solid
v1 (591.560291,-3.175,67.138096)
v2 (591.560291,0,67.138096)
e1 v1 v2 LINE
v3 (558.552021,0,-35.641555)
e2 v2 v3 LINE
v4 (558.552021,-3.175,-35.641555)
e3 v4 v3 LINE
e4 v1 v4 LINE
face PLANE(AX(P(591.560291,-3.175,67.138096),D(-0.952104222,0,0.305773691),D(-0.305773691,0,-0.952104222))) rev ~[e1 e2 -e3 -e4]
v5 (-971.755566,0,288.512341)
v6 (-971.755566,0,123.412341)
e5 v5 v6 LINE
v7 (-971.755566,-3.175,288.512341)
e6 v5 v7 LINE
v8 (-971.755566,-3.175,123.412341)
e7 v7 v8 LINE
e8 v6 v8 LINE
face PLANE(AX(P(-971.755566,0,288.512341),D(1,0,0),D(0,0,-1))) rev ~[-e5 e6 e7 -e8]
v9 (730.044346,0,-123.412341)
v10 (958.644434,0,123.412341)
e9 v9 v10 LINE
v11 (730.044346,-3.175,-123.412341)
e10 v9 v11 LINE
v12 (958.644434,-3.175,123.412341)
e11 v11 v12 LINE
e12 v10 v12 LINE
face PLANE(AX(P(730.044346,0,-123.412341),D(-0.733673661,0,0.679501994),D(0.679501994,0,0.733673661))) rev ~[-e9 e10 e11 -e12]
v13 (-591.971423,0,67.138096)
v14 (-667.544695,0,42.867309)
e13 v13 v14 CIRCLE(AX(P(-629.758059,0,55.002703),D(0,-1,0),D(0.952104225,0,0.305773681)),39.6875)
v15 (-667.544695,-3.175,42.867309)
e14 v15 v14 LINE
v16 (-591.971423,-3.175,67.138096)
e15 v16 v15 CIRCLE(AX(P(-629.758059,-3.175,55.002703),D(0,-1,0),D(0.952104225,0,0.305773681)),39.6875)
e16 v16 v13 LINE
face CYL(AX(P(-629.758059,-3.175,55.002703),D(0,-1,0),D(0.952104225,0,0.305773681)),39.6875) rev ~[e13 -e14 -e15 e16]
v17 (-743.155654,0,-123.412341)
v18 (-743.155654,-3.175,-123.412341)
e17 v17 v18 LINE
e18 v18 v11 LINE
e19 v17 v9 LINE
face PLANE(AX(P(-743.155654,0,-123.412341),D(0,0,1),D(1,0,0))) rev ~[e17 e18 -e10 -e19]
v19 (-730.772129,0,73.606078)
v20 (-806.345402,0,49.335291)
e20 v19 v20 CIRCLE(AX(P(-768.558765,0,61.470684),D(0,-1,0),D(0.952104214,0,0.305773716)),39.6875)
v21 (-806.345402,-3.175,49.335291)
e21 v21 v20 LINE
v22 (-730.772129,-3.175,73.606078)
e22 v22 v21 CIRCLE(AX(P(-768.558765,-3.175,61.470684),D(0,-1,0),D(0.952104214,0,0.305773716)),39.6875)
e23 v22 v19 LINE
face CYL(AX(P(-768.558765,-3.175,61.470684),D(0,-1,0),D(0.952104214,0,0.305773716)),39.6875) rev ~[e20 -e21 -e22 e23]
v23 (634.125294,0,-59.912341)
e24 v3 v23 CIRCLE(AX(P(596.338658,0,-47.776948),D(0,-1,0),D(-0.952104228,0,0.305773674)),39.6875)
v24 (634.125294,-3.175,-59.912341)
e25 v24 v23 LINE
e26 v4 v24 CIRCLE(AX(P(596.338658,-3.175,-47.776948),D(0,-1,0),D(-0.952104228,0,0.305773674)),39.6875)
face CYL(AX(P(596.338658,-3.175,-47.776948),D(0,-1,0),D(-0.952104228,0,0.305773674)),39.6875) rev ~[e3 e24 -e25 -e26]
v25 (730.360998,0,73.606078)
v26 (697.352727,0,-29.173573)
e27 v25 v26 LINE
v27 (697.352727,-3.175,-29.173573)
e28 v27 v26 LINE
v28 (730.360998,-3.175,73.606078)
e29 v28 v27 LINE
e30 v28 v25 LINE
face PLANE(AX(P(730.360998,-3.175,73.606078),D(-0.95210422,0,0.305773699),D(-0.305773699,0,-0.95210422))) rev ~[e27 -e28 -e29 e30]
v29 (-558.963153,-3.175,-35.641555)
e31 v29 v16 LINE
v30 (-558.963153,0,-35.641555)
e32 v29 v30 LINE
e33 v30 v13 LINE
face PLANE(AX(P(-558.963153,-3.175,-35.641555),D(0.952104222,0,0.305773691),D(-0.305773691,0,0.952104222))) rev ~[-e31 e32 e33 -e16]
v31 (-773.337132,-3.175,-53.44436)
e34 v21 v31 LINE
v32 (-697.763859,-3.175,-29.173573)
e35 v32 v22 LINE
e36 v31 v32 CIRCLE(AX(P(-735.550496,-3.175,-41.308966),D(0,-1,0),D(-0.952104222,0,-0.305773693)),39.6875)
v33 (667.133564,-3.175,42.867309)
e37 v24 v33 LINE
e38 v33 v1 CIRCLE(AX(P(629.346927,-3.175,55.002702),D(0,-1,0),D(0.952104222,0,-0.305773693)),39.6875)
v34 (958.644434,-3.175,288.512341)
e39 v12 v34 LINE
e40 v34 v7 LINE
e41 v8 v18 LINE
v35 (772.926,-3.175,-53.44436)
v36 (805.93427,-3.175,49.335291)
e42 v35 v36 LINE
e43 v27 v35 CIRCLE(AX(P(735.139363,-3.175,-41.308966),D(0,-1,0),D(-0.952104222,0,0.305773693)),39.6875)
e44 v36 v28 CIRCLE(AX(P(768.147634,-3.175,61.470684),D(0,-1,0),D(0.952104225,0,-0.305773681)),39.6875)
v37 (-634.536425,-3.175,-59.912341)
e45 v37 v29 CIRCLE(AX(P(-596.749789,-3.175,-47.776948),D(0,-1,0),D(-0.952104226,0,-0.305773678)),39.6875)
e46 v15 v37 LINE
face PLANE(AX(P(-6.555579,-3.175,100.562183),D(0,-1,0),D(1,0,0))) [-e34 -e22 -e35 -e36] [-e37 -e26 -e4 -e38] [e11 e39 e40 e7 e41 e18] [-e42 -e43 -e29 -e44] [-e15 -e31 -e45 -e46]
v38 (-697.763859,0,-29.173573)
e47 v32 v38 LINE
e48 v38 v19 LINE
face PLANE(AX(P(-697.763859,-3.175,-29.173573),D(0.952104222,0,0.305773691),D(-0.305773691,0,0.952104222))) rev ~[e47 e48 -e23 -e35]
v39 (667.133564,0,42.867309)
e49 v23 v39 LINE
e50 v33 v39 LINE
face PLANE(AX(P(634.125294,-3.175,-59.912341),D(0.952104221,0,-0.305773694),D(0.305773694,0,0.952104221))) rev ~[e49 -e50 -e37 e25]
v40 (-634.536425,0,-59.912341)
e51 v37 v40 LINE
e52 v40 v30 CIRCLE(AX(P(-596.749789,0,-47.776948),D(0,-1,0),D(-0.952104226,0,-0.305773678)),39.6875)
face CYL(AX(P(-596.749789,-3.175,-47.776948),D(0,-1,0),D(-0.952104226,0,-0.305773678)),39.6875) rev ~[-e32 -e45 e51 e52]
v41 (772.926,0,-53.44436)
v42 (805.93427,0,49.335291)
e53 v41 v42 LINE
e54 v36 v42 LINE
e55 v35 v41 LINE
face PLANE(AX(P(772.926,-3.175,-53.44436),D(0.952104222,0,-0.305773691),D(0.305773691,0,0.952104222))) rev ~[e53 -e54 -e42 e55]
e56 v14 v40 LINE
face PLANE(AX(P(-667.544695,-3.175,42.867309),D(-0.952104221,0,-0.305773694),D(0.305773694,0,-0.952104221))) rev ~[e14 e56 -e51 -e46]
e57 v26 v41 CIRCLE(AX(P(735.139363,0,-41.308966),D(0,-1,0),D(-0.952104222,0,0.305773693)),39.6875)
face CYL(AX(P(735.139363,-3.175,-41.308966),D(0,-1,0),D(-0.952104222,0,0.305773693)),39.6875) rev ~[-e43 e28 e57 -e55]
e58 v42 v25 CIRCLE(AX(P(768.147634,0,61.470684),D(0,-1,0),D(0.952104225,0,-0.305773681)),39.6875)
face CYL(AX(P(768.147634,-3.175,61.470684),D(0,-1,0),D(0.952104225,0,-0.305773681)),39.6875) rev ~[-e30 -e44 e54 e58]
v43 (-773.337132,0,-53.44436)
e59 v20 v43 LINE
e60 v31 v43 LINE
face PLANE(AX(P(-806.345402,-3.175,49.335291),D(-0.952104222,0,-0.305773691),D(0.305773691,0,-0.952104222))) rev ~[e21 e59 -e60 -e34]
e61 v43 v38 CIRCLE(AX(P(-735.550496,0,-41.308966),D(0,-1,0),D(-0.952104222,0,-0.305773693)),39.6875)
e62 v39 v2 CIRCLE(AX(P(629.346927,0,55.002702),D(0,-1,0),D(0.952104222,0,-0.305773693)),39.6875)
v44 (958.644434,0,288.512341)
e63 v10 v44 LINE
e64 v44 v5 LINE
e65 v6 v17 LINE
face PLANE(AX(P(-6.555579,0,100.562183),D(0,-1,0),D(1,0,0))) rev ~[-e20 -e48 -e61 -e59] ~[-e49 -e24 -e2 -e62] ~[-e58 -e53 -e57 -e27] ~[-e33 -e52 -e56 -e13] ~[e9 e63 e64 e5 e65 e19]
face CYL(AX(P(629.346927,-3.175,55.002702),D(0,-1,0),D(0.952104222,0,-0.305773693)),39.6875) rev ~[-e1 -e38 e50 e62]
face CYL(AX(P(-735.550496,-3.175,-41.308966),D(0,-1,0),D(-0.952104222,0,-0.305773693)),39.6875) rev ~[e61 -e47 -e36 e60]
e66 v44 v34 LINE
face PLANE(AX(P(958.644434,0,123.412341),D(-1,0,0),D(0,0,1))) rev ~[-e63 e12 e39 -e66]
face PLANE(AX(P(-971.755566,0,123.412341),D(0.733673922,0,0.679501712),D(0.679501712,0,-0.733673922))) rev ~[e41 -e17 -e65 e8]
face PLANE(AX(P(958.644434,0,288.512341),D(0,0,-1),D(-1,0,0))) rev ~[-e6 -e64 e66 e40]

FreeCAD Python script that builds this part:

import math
import FreeCAD as App
import Part
import Sketcher

V = App.Vector
Q = App.Units.Quantity


def add_polygon(sketch, points):
    """Adds a closed chain of lines whose ends are joined by coincident constraints."""
    first, n = sketch.GeometryCount, len(points)
    for a, b in zip(points, points[1:] + points[:1]):
        sketch.addGeometry(Part.LineSegment(App.Vector(*a, 0), App.Vector(*b, 0)), False)
    for i in range(n):
        sketch.addConstraint(Sketcher.Constraint("Coincident", first + i, 2, first + (i + 1) % n, 1))

doc = App.newDocument("Part")
body = doc.addObject("PartDesign::Body", "Body")

# Sketch on XZ plane
sketch1 = doc.addObject("Sketcher::SketchObject", "Sketch")
body.addObject(sketch1)
sketch1.AttachmentSupport = (doc.XZ_Plane, [""])
sketch1.MapMode = "FlatFace"
add_polygon(sketch1, [(730, -123), (959, 123), (959, 289), (-972, 289), (-972, 123), (-743, -123)])  # lines 0-5
sketch1.addConstraint(Sketcher.Constraint("Vertical", 1))
sketch1.addConstraint(Sketcher.Constraint("Horizontal", 2))
sketch1.addConstraint(Sketcher.Constraint("Vertical", 3))
sketch1.addConstraint(Sketcher.Constraint("Horizontal", 5))
sketch1.addConstraint(Sketcher.Constraint("Horizontal", 0, 2, 3, 2))
sketch1.addConstraint(Sketcher.Constraint("DistanceX", 2, 2, 2, 1, Q("76 in")))
sketch1.addConstraint(Sketcher.Constraint("DistanceX", 5, 1, 5, 2, Q("58 in")))
sketch1.addConstraint(Sketcher.Constraint("DistanceY", 1, 1, 1, 2, Q("6.5 in")))
sketch1.addConstraint(Sketcher.Constraint("DistanceY", -1, 1, 0, 2, 123.412341))
sketch1.addConstraint(Sketcher.Constraint("DistanceY", 4, 2, -1, 1, 123.412341))
sketch1.addConstraint(Sketcher.Constraint("DistanceX", 4, 2, 0, 2, 1701.800088))
sketch1.addConstraint(Sketcher.Constraint("DistanceX", -1, 1, 0, 2, 958.644434))
pad1 = doc.addObject("PartDesign::Pad", "Pad")
body.addObject(pad1)
pad1.Profile = sketch1
pad1.Length = Q("0.125 in")

# Sketch on XZ plane
sketch2 = doc.addObject("Sketcher::SketchObject", "Sketch001")
body.addObject(sketch2)
sketch2.AttachmentSupport = (doc.XZ_Plane, [""])
sketch2.MapMode = "FlatFace"
sketch2.AttachmentOffset = App.Placement(V(0, 0, 0.125 * 25.4), App.Rotation())
sketch2.addGeometry(Part.ArcOfCircle(Part.Circle(V(-769, 61, 0), V(0, 0, 1), 40), math.radians(18), math.radians(198)), False)
sketch2.addGeometry(Part.LineSegment(V(-806, 49, 0), V(-773, -53, 0)), False)
sketch2.addGeometry(Part.ArcOfCircle(Part.Circle(V(-736, -41, 0), V(0, 0, 1), 40), math.radians(-162), math.radians(18)), False)
sketch2.addGeometry(Part.LineSegment(V(-698, -29, 0), V(-731, 74, 0)), False)
sketch2.addGeometry(Part.ArcOfCircle(Part.Circle(V(-630, 55, 0), V(0, 0, 1), 40), math.radians(18), math.radians(198)), False)
sketch2.addGeometry(Part.LineSegment(V(-668, 43, 0), V(-635, -60, 0)), False)
sketch2.addGeometry(Part.ArcOfCircle(Part.Circle(V(-597, -48, 0), V(0, 0, 1), 40), math.radians(-162), math.radians(18)), False)
sketch2.addGeometry(Part.LineSegment(V(-559, -36, 0), V(-592, 67, 0)), False)
sketch2.addGeometry(Part.LineSegment(V(634, -60, 0), V(667, 43, 0)), False)
sketch2.addGeometry(Part.ArcOfCircle(Part.Circle(V(629, 55, 0), V(0, 0, 1), 40), math.radians(-18), math.radians(162)), False)
sketch2.addGeometry(Part.LineSegment(V(592, 67, 0), V(559, -36, 0)), False)
sketch2.addGeometry(Part.ArcOfCircle(Part.Circle(V(596, -48, 0), V(0, 0, 1), 40), math.radians(162), math.radians(342)), False)
sketch2.addGeometry(Part.LineSegment(V(773, -53, 0), V(806, 49, 0)), False)
sketch2.addGeometry(Part.ArcOfCircle(Part.Circle(V(768, 61, 0), V(0, 0, 1), 40), math.radians(-18), math.radians(162)), False)
sketch2.addGeometry(Part.LineSegment(V(730, 74, 0), V(697, -29, 0)), False)
sketch2.addGeometry(Part.ArcOfCircle(Part.Circle(V(735, -41, 0), V(0, 0, 1), 40), math.radians(162), math.radians(342)), False)
sketch2.addConstraint(Sketcher.Constraint("Tangent", 0, 2, 1, 1))
sketch2.addConstraint(Sketcher.Constraint("Tangent", 1, 2, 2, 1))
sketch2.addConstraint(Sketcher.Constraint("Tangent", 2, 2, 3, 1))
sketch2.addConstraint(Sketcher.Constraint("Tangent", 3, 2, 0, 1))
sketch2.addConstraint(Sketcher.Constraint("Tangent", 4, 2, 5, 1))
sketch2.addConstraint(Sketcher.Constraint("Tangent", 5, 2, 6, 1))
sketch2.addConstraint(Sketcher.Constraint("Tangent", 6, 2, 7, 1))
sketch2.addConstraint(Sketcher.Constraint("Tangent", 7, 2, 4, 1))
sketch2.addConstraint(Sketcher.Constraint("Tangent", 8, 2, 9, 1))
sketch2.addConstraint(Sketcher.Constraint("Tangent", 9, 2, 10, 1))
sketch2.addConstraint(Sketcher.Constraint("Tangent", 10, 2, 11, 1))
sketch2.addConstraint(Sketcher.Constraint("Tangent", 11, 2, 8, 1))
sketch2.addConstraint(Sketcher.Constraint("Tangent", 12, 2, 13, 1))
sketch2.addConstraint(Sketcher.Constraint("Tangent", 13, 2, 14, 1))
sketch2.addConstraint(Sketcher.Constraint("Tangent", 14, 2, 15, 1))
sketch2.addConstraint(Sketcher.Constraint("Tangent", 15, 2, 12, 1))
sketch2.addConstraint(Sketcher.Constraint("Equal", 0, 2))
sketch2.addConstraint(Sketcher.Constraint("Equal", 2, 4))
sketch2.addConstraint(Sketcher.Constraint("Equal", 4, 6))
sketch2.addConstraint(Sketcher.Constraint("Equal", 6, 9))
sketch2.addConstraint(Sketcher.Constraint("Equal", 9, 11))
sketch2.addConstraint(Sketcher.Constraint("Equal", 11, 13))
sketch2.addConstraint(Sketcher.Constraint("Equal", 13, 15))
sketch2.addConstraint(Sketcher.Constraint("Parallel", 3, 5))
sketch2.addConstraint(Sketcher.Constraint("Parallel", 10, 12))
sketch2.addConstraint(Sketcher.Constraint("Horizontal", 4, 3, 9, 3))
sketch2.addConstraint(Sketcher.Constraint("Horizontal", 6, 3, 11, 3))
sketch2.addConstraint(Sketcher.Constraint("Horizontal", 0, 3, 13, 3))
sketch2.addConstraint(Sketcher.Constraint("Horizontal", 2, 3, 15, 3))
sketch2.addConstraint(Sketcher.Constraint("Horizontal", 4, 2, 8, 2))
sketch2.addConstraint(Sketcher.Constraint("Equal", 3, 5))
sketch2.addConstraint(Sketcher.Constraint("Radius", 0, Q("1.5625 in")))
sketch2.addConstraint(Sketcher.Constraint("Distance", 1, Q("4.25 in")))
sketch2.addConstraint(Sketcher.Constraint("DistanceX", -1, 1, 11, 3, Q("23.4778999 in")))
sketch2.addConstraint(Sketcher.Constraint("DistanceY", 6, 2, 4, 2, Q("3.0909002 in")))
sketch2.addConstraint(Sketcher.Constraint("DistanceX", -1, 1, 13, 2, 730.360998))
sketch2.addConstraint(Sketcher.Constraint("DistanceX", 2, 2, 4, 3, 68.0058))
sketch2.addConstraint(Sketcher.Constraint("DistanceX", 4, 3, -1, 1, 629.758059))
sketch2.addConstraint(Sketcher.Constraint("DistanceY", 6, 3, -1, 1, 47.776948))
sketch2.addConstraint(Sketcher.Constraint("DistanceY", -1, 1, 0, 2, 49.335291))
pocket1 = doc.addObject("PartDesign::Pocket", "Pocket")
body.addObject(pocket1)
pocket1.Profile = sketch2
pocket1.Length = Q("1 in")

doc.recompute()
